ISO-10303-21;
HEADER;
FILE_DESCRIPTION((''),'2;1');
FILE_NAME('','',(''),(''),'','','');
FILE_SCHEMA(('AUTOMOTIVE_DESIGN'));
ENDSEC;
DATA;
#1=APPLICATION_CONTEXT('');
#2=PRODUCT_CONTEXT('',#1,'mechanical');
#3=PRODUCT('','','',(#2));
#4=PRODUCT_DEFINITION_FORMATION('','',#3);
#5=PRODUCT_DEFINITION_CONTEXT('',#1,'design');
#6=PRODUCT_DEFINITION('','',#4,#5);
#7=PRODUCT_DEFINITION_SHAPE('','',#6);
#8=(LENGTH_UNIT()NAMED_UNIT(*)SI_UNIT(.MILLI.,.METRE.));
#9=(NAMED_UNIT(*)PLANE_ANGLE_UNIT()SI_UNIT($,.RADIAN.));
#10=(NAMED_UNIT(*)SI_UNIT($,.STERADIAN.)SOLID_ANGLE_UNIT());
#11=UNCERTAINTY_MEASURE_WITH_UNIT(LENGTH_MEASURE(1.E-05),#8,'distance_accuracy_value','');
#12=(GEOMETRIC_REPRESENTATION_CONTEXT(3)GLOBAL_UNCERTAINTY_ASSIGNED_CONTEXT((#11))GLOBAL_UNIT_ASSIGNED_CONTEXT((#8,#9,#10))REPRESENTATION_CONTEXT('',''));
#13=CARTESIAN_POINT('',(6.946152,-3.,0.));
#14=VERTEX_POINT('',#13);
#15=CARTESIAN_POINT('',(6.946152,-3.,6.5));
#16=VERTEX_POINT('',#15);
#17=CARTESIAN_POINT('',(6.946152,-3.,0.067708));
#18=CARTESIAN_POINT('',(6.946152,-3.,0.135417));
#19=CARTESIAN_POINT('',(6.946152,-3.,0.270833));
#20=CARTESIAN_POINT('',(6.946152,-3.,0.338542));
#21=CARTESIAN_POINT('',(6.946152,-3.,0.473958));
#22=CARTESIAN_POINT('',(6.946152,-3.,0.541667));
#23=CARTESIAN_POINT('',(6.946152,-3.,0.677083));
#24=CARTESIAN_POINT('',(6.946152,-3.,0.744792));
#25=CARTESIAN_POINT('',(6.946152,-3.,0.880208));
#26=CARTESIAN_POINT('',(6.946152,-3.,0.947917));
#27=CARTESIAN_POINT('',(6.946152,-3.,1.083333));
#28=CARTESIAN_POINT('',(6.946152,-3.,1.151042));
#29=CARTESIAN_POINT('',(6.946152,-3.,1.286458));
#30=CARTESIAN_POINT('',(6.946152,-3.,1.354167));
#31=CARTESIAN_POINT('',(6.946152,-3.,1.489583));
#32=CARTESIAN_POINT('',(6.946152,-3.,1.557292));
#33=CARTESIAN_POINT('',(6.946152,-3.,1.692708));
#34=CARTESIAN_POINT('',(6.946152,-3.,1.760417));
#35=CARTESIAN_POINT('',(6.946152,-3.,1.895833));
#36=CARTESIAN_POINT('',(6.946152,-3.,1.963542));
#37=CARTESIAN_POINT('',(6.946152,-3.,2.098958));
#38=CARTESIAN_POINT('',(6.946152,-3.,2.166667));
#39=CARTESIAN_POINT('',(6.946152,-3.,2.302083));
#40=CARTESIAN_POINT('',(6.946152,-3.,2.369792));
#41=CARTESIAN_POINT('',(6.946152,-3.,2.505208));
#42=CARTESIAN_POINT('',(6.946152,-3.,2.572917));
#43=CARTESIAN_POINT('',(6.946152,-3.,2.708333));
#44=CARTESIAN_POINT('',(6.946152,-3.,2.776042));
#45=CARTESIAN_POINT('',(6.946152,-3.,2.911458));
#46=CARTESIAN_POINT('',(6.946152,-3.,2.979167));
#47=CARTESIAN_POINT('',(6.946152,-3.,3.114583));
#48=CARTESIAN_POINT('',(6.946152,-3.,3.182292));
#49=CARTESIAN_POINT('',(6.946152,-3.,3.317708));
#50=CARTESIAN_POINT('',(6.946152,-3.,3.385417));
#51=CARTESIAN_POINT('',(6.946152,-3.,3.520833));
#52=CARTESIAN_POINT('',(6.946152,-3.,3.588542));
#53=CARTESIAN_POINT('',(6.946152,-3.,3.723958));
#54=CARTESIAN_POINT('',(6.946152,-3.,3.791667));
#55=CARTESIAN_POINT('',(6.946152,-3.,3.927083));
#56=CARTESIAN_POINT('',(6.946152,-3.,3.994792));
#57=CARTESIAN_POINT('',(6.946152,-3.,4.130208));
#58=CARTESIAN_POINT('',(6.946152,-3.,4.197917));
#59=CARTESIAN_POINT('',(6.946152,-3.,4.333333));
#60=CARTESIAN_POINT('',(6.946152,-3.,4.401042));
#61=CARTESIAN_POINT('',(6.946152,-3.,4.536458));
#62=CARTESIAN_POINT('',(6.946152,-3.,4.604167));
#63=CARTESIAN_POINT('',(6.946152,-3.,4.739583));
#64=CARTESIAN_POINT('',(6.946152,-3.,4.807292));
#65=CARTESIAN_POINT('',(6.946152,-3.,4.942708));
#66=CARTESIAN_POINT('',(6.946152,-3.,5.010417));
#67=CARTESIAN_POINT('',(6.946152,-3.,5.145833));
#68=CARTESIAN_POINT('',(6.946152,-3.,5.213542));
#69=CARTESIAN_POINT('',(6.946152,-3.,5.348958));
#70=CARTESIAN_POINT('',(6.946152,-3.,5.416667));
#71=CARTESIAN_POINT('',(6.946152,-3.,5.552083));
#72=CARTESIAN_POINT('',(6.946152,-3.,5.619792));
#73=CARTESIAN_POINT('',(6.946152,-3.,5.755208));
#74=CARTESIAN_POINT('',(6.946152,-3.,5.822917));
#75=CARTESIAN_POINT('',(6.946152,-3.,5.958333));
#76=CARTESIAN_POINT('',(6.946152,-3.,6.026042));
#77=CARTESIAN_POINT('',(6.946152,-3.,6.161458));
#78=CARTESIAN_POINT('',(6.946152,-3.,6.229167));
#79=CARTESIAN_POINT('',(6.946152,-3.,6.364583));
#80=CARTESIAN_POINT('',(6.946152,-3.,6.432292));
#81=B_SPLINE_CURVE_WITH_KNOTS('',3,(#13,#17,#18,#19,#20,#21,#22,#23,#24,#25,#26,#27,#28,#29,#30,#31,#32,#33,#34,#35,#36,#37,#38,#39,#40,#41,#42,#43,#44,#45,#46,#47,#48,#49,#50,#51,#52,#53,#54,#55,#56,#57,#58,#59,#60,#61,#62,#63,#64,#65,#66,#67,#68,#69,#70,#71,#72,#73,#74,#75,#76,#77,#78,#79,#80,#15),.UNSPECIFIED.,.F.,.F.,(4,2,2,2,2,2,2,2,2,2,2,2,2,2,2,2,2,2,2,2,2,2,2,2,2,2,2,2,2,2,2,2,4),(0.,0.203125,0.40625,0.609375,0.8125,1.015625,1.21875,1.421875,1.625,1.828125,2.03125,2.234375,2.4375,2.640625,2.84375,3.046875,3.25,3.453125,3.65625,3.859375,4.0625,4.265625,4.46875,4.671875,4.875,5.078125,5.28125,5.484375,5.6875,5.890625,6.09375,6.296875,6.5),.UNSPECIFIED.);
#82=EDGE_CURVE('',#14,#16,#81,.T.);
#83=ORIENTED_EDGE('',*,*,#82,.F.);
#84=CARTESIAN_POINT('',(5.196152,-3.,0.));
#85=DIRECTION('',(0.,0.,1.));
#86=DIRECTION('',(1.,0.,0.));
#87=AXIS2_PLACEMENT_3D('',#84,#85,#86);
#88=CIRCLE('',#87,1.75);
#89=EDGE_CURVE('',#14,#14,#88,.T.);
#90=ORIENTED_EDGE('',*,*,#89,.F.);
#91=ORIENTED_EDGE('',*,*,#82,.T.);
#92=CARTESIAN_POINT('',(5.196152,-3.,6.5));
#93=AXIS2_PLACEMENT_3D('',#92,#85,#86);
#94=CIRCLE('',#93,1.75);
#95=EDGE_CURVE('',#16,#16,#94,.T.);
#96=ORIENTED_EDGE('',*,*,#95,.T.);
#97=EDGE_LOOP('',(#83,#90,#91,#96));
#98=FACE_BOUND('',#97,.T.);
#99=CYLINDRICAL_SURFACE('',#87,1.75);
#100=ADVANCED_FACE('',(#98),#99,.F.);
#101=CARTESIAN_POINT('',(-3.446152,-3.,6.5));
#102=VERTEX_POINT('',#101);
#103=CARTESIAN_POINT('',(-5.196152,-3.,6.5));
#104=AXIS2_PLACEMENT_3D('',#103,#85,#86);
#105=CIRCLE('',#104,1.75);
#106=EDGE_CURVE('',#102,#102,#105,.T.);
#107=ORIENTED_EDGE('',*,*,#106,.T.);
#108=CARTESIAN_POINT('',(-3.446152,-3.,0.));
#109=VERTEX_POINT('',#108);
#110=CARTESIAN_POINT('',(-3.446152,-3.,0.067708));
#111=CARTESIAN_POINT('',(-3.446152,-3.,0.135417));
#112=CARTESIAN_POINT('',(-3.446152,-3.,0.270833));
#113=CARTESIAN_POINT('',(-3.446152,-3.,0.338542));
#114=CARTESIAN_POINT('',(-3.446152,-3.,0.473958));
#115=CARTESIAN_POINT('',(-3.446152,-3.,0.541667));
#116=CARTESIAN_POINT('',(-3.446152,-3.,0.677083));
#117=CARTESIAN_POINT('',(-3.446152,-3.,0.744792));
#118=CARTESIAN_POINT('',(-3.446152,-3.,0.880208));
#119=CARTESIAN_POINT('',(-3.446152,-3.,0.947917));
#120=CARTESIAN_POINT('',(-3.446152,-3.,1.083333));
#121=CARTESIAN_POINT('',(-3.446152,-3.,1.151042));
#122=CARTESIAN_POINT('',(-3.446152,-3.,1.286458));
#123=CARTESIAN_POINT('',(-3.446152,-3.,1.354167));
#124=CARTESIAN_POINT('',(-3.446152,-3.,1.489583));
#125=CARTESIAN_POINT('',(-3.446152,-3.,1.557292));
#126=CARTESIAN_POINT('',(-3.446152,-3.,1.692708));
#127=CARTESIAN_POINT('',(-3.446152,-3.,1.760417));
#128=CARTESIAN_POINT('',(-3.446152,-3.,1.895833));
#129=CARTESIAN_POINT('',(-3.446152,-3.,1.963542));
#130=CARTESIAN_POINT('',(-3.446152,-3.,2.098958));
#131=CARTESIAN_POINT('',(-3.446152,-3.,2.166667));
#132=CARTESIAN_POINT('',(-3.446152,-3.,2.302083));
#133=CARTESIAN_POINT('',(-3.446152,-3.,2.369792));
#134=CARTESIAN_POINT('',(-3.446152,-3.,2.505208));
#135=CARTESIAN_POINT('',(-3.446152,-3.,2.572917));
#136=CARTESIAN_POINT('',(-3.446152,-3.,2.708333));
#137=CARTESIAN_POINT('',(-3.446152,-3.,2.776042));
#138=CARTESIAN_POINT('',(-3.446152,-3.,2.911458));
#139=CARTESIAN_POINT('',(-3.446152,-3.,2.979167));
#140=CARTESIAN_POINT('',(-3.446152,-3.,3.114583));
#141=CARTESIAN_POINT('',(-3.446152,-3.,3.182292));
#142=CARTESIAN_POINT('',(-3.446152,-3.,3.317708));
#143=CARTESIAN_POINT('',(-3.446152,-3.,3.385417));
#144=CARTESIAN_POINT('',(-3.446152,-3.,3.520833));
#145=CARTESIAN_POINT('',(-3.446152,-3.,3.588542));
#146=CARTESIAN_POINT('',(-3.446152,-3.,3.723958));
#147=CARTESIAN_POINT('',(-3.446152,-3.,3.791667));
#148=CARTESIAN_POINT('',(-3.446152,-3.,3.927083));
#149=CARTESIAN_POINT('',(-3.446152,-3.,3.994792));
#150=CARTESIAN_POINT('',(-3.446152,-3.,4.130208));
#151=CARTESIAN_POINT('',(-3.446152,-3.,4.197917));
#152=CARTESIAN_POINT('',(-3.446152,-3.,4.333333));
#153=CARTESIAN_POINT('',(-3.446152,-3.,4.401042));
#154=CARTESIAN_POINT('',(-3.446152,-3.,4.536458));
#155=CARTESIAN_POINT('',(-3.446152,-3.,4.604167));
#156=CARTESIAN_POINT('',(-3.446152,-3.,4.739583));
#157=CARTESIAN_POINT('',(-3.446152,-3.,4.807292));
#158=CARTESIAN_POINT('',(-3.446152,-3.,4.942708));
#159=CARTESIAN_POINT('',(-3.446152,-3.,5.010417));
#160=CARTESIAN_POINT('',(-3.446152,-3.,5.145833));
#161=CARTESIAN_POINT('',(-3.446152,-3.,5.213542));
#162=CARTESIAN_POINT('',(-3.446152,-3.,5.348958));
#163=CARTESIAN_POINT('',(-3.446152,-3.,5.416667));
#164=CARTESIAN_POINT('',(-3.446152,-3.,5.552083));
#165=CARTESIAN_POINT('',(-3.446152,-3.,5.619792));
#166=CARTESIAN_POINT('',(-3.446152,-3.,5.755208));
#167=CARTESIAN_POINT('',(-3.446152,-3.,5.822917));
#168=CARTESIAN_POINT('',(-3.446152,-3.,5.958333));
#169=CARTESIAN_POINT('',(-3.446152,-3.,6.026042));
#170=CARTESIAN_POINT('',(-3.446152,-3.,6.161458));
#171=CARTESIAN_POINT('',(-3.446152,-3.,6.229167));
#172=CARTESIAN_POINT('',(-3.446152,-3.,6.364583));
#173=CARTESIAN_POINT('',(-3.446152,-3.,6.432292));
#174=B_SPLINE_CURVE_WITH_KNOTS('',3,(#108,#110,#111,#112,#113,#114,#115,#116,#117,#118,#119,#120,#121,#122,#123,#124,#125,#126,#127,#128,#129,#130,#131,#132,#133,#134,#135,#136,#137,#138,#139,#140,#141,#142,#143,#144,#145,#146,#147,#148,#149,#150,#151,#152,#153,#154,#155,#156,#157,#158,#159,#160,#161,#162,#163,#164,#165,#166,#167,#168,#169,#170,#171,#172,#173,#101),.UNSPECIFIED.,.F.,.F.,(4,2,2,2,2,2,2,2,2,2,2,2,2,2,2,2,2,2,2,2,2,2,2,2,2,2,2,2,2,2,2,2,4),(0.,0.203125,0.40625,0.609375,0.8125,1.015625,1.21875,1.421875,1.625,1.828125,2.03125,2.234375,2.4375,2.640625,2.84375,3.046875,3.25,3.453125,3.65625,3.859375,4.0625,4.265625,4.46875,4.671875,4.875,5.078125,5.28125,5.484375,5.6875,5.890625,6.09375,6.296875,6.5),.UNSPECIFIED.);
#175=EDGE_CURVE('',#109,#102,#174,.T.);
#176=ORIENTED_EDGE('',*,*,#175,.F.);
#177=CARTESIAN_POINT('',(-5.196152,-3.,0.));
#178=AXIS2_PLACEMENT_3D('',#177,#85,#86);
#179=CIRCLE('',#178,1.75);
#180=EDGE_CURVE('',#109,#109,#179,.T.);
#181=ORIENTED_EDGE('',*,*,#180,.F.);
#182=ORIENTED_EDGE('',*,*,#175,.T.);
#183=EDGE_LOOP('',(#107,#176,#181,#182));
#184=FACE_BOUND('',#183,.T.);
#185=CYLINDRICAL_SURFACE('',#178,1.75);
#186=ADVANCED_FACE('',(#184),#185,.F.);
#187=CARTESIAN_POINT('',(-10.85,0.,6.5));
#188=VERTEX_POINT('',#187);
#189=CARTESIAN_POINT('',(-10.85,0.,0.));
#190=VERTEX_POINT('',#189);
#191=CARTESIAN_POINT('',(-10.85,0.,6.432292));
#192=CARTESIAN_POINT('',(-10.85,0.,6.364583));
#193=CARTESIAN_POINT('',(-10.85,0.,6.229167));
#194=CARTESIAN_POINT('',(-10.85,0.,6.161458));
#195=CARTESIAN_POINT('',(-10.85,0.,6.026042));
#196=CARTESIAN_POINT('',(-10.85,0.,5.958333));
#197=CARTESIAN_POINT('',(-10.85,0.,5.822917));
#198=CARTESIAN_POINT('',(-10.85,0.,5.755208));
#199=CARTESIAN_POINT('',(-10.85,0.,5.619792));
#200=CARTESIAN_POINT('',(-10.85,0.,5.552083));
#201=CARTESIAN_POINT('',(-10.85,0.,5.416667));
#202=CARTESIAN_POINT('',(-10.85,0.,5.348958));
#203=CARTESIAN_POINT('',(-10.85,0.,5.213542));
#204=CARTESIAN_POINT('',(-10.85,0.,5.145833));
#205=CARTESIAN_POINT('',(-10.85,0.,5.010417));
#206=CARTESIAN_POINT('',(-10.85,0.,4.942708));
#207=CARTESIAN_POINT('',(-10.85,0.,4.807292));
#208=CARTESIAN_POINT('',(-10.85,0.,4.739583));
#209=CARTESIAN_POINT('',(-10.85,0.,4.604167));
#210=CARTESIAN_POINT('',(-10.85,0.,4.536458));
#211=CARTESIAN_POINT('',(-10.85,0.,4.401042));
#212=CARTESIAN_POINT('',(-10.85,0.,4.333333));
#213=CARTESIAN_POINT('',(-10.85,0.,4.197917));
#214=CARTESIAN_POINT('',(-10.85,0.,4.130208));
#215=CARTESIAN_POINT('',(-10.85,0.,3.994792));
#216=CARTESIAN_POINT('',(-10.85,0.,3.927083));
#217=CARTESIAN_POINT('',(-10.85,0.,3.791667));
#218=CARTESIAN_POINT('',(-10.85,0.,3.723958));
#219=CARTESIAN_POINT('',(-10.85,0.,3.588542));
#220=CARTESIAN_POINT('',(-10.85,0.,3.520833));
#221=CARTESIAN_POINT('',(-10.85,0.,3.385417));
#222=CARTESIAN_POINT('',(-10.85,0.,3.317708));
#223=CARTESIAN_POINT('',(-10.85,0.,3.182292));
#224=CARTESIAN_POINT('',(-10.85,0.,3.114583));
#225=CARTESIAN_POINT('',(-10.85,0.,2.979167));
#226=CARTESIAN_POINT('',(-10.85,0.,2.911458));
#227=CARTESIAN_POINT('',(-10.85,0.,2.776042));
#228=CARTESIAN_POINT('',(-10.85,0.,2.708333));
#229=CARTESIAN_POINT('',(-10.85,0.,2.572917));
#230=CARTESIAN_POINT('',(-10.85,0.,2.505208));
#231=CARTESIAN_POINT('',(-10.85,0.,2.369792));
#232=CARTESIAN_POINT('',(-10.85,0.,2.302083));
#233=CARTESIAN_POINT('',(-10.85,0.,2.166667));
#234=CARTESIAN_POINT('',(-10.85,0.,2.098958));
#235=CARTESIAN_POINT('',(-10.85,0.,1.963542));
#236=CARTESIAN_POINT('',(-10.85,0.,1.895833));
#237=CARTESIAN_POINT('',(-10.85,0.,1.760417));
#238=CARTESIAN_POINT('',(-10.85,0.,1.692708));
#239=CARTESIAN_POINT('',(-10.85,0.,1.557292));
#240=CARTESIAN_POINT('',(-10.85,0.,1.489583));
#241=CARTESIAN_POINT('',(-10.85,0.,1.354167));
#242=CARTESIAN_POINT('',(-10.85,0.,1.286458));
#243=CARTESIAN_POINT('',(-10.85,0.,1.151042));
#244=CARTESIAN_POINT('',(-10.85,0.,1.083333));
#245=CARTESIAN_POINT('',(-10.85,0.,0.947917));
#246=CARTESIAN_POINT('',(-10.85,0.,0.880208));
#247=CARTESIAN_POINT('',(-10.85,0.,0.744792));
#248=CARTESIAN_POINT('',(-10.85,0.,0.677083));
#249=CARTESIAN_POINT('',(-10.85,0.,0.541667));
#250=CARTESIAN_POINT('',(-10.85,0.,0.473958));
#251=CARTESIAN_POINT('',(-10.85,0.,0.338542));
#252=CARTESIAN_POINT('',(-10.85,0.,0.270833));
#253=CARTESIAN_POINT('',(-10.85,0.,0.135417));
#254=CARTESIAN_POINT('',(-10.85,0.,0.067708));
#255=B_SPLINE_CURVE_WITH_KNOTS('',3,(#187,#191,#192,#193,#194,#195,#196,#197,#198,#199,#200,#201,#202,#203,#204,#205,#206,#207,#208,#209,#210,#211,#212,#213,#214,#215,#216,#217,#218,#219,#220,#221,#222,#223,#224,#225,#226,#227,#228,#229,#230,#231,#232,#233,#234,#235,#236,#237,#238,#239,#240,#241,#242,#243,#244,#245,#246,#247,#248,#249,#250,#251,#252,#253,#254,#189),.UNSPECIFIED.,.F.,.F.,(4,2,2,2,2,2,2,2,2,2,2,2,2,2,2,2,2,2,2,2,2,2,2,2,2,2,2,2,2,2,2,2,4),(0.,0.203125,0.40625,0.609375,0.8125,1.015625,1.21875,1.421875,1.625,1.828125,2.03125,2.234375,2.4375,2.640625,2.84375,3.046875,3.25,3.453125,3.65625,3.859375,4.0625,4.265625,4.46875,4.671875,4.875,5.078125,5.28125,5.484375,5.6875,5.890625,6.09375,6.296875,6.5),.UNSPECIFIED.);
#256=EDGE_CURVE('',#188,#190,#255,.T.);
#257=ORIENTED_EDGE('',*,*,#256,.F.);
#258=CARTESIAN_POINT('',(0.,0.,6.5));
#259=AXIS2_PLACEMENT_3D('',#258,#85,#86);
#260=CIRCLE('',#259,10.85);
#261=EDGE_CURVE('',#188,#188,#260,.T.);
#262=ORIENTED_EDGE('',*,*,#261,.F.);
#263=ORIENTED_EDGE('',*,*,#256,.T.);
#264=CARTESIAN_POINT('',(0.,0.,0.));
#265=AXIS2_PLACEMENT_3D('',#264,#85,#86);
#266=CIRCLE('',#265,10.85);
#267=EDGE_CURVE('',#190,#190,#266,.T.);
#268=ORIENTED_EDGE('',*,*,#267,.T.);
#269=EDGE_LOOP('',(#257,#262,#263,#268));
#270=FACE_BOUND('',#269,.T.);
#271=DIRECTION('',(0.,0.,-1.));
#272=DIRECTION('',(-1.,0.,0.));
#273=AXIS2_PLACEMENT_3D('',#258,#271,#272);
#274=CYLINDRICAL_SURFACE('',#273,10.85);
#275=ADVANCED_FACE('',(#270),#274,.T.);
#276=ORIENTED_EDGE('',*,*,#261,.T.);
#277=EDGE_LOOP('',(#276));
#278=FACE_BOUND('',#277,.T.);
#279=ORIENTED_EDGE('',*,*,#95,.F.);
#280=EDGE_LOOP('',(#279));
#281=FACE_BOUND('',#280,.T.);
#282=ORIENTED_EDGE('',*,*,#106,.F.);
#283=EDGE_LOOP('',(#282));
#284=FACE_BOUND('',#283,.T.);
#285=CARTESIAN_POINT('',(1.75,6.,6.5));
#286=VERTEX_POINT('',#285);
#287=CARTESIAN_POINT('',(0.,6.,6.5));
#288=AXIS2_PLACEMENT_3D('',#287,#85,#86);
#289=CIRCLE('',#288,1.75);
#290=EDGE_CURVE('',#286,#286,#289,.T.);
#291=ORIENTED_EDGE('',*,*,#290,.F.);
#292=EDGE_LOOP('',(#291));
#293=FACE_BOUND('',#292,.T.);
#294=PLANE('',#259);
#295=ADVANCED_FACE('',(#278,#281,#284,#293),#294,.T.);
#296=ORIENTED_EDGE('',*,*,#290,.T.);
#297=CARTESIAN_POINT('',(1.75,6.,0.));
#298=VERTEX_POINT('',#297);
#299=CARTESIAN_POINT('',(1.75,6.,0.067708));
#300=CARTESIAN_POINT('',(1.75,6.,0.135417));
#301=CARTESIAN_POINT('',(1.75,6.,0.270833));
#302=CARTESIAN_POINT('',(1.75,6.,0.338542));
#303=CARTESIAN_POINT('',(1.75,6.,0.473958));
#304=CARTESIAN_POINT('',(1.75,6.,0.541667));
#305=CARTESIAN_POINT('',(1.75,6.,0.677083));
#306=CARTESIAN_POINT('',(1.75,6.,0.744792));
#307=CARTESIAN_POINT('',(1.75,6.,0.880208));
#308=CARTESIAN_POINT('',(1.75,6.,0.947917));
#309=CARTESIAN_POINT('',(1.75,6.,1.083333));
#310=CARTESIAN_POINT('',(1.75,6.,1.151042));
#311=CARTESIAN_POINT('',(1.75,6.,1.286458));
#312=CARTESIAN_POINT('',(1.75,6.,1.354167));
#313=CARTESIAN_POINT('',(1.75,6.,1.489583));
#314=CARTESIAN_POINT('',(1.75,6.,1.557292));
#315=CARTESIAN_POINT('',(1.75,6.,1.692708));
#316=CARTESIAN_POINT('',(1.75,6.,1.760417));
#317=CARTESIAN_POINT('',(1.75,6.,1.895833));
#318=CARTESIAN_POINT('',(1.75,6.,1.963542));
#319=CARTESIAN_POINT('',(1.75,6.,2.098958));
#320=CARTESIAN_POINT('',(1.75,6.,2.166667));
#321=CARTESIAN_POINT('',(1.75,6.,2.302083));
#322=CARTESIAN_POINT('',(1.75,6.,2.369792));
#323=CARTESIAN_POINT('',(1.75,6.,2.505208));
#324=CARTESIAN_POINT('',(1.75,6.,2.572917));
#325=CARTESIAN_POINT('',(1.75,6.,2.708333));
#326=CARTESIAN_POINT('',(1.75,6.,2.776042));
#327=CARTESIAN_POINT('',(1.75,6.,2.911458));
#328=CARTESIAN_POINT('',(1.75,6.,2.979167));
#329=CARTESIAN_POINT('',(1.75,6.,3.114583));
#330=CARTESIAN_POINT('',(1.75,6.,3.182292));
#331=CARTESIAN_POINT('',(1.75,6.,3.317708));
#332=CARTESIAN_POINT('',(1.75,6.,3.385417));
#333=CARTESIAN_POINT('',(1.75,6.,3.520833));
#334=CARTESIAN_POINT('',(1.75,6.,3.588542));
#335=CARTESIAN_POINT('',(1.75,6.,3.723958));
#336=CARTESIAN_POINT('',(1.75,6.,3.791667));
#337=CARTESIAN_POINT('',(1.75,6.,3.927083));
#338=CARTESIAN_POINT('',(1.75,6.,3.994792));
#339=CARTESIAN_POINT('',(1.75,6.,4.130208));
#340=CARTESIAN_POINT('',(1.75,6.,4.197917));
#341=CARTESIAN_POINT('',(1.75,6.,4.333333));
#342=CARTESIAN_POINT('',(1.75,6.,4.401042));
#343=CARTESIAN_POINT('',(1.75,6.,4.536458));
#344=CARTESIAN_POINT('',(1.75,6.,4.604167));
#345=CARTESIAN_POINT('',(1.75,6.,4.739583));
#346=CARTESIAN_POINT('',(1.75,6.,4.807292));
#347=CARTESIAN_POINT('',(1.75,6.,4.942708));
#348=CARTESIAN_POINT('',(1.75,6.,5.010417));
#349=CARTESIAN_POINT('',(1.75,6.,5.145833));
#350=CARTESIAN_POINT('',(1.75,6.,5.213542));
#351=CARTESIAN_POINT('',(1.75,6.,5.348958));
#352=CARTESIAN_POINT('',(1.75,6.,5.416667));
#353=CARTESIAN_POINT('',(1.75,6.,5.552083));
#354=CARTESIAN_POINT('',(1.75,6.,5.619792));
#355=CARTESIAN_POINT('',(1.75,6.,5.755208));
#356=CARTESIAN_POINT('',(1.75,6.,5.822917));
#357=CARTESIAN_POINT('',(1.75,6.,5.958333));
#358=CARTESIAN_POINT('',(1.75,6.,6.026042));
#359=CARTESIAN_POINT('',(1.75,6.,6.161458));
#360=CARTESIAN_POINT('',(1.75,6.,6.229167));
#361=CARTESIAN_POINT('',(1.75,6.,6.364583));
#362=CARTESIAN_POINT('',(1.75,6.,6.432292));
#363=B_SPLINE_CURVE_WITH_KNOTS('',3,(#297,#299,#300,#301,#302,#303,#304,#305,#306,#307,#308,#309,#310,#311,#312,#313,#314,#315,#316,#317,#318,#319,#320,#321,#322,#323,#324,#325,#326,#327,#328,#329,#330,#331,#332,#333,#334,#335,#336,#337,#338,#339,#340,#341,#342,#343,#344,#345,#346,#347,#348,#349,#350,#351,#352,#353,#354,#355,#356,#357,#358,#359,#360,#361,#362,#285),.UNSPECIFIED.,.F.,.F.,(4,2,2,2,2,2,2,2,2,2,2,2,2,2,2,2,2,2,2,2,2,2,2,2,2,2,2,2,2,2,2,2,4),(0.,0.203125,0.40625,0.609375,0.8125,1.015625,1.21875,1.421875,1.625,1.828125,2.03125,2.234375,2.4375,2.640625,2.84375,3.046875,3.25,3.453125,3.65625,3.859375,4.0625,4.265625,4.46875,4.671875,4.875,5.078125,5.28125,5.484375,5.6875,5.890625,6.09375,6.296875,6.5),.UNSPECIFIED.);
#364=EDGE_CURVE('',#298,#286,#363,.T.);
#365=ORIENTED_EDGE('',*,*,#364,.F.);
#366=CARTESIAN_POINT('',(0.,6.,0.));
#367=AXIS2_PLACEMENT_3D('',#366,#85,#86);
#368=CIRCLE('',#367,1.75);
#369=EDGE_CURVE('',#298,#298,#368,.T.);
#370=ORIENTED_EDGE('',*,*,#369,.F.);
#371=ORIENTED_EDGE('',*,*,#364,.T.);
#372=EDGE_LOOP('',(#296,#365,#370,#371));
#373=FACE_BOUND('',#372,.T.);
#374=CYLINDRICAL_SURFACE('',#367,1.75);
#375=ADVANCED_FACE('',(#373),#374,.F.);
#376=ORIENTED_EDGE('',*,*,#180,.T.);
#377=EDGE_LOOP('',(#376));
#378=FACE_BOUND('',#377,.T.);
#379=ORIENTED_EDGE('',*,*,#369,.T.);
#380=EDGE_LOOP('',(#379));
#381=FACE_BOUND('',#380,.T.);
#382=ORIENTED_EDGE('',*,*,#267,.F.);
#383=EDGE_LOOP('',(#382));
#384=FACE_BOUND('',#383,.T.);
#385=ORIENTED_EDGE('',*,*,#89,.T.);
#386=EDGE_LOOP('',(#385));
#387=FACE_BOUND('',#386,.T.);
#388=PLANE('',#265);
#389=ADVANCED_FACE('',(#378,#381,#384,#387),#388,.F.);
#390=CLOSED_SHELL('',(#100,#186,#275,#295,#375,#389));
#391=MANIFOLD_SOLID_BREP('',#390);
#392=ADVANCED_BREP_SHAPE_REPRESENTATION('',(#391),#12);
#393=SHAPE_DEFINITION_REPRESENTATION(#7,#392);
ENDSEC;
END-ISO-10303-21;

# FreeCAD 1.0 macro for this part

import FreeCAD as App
import Part
import Sketcher
from FreeCAD import Vector

doc = App.newDocument("Part")
body = doc.addObject("PartDesign::Body", "Body")

sketch1 = body.newObject("Sketcher::SketchObject", "Sketch")
sketch1.AttachmentSupport = (doc.getObject("XY_Plane"), [""])
sketch1.MapMode = "FlatFace"
sketch1.addGeometry(Part.Circle(Vector(0, 0, 0), Vector(0, 0, 1), 11), False)
sketch1.addConstraint(Sketcher.Constraint("Coincident", 0, 3, -1, 1))
sketch1.addConstraint(Sketcher.Constraint("Diameter", 0, 21.7))
pad1 = body.newObject("PartDesign::Pad", "Pad")
pad1.Profile = sketch1
pad1.Length = 6.5

sketch2 = body.newObject("Sketcher::SketchObject", "Sketch001")
sketch2.AttachmentSupport = (doc.getObject("XY_Plane"), [""])
sketch2.MapMode = "FlatFace"
sketch2.AttachmentOffset = App.Placement(Vector(0, 0, 6.5), App.Rotation())
sketch2.addGeometry(Part.Circle(Vector(0, 6, 0), Vector(0, 0, 1), 1.8), False)
sketch2.addGeometry(Part.Circle(Vector(5.2, -3, 0), Vector(0, 0, 1), 1.8), False)
sketch2.addGeometry(Part.Circle(Vector(-5.2, -3, 0), Vector(0, 0, 1), 1.8), False)
sketch2.addConstraint(Sketcher.Constraint("Equal", 0, 1))
sketch2.addConstraint(Sketcher.Constraint("Equal", 1, 2))
sketch2.addConstraint(Sketcher.Constraint("Symmetric", 1, 3, 2, 3, -2))
sketch2.addConstraint(Sketcher.Constraint("PointOnObject", 0, 3, -2))
sketch2.addConstraint(Sketcher.Constraint("Diameter", 0, 3.5))
sketch2.addConstraint(Sketcher.Constraint("DistanceY", -1, 1, 0, 3, 6.0))
sketch2.addConstraint(Sketcher.Constraint("DistanceY", 1, 3, -1, 1, 3.0))
sketch2.addConstraint(Sketcher.Constraint("DistanceX", -1, 1, 1, 3, 5.196152))
pocket1 = body.newObject("PartDesign::Pocket", "Pocket")
pocket1.Profile = sketch2
pocket1.Type = "ThroughAll"

doc.recompute()
